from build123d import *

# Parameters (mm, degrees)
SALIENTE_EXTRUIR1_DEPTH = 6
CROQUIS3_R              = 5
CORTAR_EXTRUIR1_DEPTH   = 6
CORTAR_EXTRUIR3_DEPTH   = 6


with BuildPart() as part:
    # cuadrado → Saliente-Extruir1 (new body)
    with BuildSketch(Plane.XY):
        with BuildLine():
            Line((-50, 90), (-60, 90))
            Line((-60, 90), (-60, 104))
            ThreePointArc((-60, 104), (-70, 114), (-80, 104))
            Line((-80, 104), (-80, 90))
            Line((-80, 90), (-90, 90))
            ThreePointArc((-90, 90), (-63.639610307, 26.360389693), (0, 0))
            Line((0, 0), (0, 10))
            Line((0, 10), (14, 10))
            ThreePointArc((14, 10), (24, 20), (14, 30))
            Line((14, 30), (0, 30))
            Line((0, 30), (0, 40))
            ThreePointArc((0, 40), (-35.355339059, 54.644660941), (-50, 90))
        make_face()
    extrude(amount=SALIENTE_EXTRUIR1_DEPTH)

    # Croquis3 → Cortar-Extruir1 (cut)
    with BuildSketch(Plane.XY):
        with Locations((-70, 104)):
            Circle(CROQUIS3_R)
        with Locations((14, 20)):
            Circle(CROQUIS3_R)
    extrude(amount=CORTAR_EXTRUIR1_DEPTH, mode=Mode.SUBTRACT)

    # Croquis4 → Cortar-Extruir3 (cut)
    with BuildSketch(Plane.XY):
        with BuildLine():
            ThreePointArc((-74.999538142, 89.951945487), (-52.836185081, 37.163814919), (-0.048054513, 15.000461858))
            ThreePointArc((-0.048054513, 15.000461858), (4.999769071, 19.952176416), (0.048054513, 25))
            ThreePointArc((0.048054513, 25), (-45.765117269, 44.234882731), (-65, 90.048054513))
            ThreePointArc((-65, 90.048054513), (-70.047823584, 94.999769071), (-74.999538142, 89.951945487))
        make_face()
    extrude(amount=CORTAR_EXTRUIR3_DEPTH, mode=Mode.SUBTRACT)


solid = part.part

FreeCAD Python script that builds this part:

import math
import FreeCAD as App
import Part
import Sketcher
Q = App.Units.Quantity

doc = App.newDocument("Part")
body = doc.addObject("PartDesign::Body", "Body")

# Sketch on XY plane
sketch1 = body.newObject("Sketcher::SketchObject", "Sketch")
sketch1.AttachmentSupport = (doc.getObject("XY_Plane"), [""])
sketch1.MapMode = "FlatFace"
sketch1.addGeometry([
    Part.LineSegment(App.Vector(-50, 90, 0), App.Vector(-60, 90, 0)),  # 0
    Part.LineSegment(App.Vector(-60, 90, 0), App.Vector(-60, 104, 0)),  # 1
    Part.ArcOfCircle(Part.Circle(App.Vector(-70, 104, 0), App.Vector(0, 0, 1), 10), math.radians(0), math.radians(180)),  # 2
    Part.LineSegment(App.Vector(-80, 104, 0), App.Vector(-80, 90, 0)),  # 3
    Part.LineSegment(App.Vector(-80, 90, 0), App.Vector(-90, 90, 0)),  # 4
    Part.ArcOfCircle(Part.Circle(App.Vector(0, 90, 0), App.Vector(0, 0, 1), 90), math.radians(180), math.radians(270)),  # 5
    Part.LineSegment(App.Vector(0, 0, 0), App.Vector(0, 10, 0)),  # 6
    Part.LineSegment(App.Vector(0, 10, 0), App.Vector(14, 10, 0)),  # 7
    Part.ArcOfCircle(Part.Circle(App.Vector(14, 20, 0), App.Vector(0, 0, 1), 10), math.radians(-90), math.radians(90)),  # 8
    Part.LineSegment(App.Vector(14, 30, 0), App.Vector(0, 30, 0)),  # 9
    Part.LineSegment(App.Vector(0, 30, 0), App.Vector(0, 40, 0)),  # 10
    Part.ArcOfCircle(Part.Circle(App.Vector(0, 90, 0), App.Vector(0, 0, 1), 50), math.radians(-180), math.radians(-90)),  # 11
], False)
sketch1.addConstraint([
    Sketcher.Constraint("Coincident", 0, 2, 1, 1),
    Sketcher.Constraint("Tangent", 1, 2, 2, 1),
    Sketcher.Constraint("Tangent", 2, 2, 3, 1),
    Sketcher.Constraint("Coincident", 3, 2, 4, 1),
    Sketcher.Constraint("Coincident", 4, 2, 5, 1),
    Sketcher.Constraint("Coincident", 5, 2, 6, 1),
    Sketcher.Constraint("Coincident", 6, 2, 7, 1),
    Sketcher.Constraint("Tangent", 7, 2, 8, 1),
    Sketcher.Constraint("Tangent", 8, 2, 9, 1),
    Sketcher.Constraint("Coincident", 9, 2, 10, 1),
    Sketcher.Constraint("Coincident", 10, 2, 11, 2),
    Sketcher.Constraint("Coincident", 11, 1, 0, 1),
    Sketcher.Constraint("Horizontal", 0),
    Sketcher.Constraint("Vertical", 1),
    Sketcher.Constraint("Vertical", 3),
    Sketcher.Constraint("Horizontal", 4),
    Sketcher.Constraint("Vertical", 6),
    Sketcher.Constraint("Horizontal", 7),
    Sketcher.Constraint("Horizontal", 9),
    Sketcher.Constraint("Vertical", 10),
    Sketcher.Constraint("Coincident", 5, 2, -1, 1),
    Sketcher.Constraint("Coincident", 11, 3, 5, 3),
    Sketcher.Constraint("Equal", 2, 8),
    Sketcher.Constraint("PointOnObject", 5, 3, -2),
    Sketcher.Constraint("PointOnObject", 9, 2, -2),
    Sketcher.Constraint("Horizontal", 11, 3, 0, 2),
    Sketcher.Constraint("Horizontal", 0, 2, 3, 2),
    Sketcher.Constraint("Equal", 0, 4),
    Sketcher.Constraint("Equal", 9, 1),
    Sketcher.Constraint("Equal", 4, 6),
    Sketcher.Constraint("Radius", 2, Q("10 mm")),
    Sketcher.Constraint("Radius", 5, Q("90 mm")),
    Sketcher.Constraint("Radius", 11, Q("50 mm")),
    Sketcher.Constraint("DistanceX", 7, 1, 7, 2, Q("14 mm")),
])
pad1 = body.newObject("PartDesign::Pad", "Pad")
pad1.Profile = sketch1
pad1.Length = 6

# Sketch on XY plane
sketch2 = body.newObject("Sketcher::SketchObject", "Sketch001")
sketch2.AttachmentSupport = (doc.getObject("XY_Plane"), [""])
sketch2.MapMode = "FlatFace"
sketch2.addGeometry([
    Part.Circle(App.Vector(-70, 104, 0), App.Vector(0, 0, 1), 5),
    Part.Circle(App.Vector(14, 20, 0), App.Vector(0, 0, 1), 5),
], False)
sketch2.addConstraint([
    Sketcher.Constraint("Equal", 0, 1),
    Sketcher.Constraint("Diameter", 0, Q("10 mm")),
    Sketcher.Constraint("DistanceX", 0, 3, -1, 1, Q("70 mm")),
    Sketcher.Constraint("DistanceY", -1, 1, 0, 3, Q("104 mm")),
    Sketcher.Constraint("DistanceX", -1, 1, 1, 3, Q("14 mm")),
    Sketcher.Constraint("DistanceY", -1, 1, 1, 3, Q("20 mm")),
])
pocket1 = body.newObject("PartDesign::Pocket", "Pocket")
pocket1.Profile = sketch2
pocket1.Length = 6
pocket1.Reversed = True

# Sketch on XY plane
sketch3 = body.newObject("Sketcher::SketchObject", "Sketch002")
sketch3.AttachmentSupport = (doc.getObject("XY_Plane"), [""])
sketch3.MapMode = "FlatFace"
sketch3.addGeometry([
    Part.ArcOfCircle(Part.Circle(App.Vector(1, 91, 0), App.Vector(0, 0, 1), 76), math.radians(-179), math.radians(-91)),
    Part.ArcOfCircle(Part.Circle(App.Vector(0, 20, 0), App.Vector(0, 0, 1), 5), math.radians(-91), math.radians(89)),
    Part.ArcOfCircle(Part.Circle(App.Vector(1, 91, 0), App.Vector(0, 0, 1), 66), math.radians(-179), math.radians(-91)),
    Part.ArcOfCircle(Part.Circle(App.Vector(-70, 90, 0), App.Vector(0, 0, 1), 5), math.radians(1), math.radians(181)),
], False)
sketch3.addConstraint([
    Sketcher.Constraint("Tangent", 0, 2, 1, 1),
    Sketcher.Constraint("Tangent", 1, 2, 2, 2),
    Sketcher.Constraint("Tangent", 2, 1, 3, 1),
    Sketcher.Constraint("Tangent", 3, 2, 0, 1),
    Sketcher.Constraint("Coincident", 2, 3, 0, 3),
    Sketcher.Constraint("PointOnObject", 1, 3, -2),
    Sketcher.Constraint("Radius", 1, Q("5 mm")),
    Sketcher.Constraint("DistanceY", -1, 1, 3, 3, Q("90 mm")),
    Sketcher.Constraint("DistanceY", -1, 1, 1, 2, Q("25 mm")),
    Sketcher.Constraint("DistanceX", 2, 1, -1, 1, Q("65 mm")),
    Sketcher.Constraint("Radius", 0, Q("75.682355 mm")),
])
pocket2 = body.newObject("PartDesign::Pocket", "Pocket001")
pocket2.Profile = sketch3
pocket2.Length = 6
pocket2.Reversed = True

doc.recompute()
